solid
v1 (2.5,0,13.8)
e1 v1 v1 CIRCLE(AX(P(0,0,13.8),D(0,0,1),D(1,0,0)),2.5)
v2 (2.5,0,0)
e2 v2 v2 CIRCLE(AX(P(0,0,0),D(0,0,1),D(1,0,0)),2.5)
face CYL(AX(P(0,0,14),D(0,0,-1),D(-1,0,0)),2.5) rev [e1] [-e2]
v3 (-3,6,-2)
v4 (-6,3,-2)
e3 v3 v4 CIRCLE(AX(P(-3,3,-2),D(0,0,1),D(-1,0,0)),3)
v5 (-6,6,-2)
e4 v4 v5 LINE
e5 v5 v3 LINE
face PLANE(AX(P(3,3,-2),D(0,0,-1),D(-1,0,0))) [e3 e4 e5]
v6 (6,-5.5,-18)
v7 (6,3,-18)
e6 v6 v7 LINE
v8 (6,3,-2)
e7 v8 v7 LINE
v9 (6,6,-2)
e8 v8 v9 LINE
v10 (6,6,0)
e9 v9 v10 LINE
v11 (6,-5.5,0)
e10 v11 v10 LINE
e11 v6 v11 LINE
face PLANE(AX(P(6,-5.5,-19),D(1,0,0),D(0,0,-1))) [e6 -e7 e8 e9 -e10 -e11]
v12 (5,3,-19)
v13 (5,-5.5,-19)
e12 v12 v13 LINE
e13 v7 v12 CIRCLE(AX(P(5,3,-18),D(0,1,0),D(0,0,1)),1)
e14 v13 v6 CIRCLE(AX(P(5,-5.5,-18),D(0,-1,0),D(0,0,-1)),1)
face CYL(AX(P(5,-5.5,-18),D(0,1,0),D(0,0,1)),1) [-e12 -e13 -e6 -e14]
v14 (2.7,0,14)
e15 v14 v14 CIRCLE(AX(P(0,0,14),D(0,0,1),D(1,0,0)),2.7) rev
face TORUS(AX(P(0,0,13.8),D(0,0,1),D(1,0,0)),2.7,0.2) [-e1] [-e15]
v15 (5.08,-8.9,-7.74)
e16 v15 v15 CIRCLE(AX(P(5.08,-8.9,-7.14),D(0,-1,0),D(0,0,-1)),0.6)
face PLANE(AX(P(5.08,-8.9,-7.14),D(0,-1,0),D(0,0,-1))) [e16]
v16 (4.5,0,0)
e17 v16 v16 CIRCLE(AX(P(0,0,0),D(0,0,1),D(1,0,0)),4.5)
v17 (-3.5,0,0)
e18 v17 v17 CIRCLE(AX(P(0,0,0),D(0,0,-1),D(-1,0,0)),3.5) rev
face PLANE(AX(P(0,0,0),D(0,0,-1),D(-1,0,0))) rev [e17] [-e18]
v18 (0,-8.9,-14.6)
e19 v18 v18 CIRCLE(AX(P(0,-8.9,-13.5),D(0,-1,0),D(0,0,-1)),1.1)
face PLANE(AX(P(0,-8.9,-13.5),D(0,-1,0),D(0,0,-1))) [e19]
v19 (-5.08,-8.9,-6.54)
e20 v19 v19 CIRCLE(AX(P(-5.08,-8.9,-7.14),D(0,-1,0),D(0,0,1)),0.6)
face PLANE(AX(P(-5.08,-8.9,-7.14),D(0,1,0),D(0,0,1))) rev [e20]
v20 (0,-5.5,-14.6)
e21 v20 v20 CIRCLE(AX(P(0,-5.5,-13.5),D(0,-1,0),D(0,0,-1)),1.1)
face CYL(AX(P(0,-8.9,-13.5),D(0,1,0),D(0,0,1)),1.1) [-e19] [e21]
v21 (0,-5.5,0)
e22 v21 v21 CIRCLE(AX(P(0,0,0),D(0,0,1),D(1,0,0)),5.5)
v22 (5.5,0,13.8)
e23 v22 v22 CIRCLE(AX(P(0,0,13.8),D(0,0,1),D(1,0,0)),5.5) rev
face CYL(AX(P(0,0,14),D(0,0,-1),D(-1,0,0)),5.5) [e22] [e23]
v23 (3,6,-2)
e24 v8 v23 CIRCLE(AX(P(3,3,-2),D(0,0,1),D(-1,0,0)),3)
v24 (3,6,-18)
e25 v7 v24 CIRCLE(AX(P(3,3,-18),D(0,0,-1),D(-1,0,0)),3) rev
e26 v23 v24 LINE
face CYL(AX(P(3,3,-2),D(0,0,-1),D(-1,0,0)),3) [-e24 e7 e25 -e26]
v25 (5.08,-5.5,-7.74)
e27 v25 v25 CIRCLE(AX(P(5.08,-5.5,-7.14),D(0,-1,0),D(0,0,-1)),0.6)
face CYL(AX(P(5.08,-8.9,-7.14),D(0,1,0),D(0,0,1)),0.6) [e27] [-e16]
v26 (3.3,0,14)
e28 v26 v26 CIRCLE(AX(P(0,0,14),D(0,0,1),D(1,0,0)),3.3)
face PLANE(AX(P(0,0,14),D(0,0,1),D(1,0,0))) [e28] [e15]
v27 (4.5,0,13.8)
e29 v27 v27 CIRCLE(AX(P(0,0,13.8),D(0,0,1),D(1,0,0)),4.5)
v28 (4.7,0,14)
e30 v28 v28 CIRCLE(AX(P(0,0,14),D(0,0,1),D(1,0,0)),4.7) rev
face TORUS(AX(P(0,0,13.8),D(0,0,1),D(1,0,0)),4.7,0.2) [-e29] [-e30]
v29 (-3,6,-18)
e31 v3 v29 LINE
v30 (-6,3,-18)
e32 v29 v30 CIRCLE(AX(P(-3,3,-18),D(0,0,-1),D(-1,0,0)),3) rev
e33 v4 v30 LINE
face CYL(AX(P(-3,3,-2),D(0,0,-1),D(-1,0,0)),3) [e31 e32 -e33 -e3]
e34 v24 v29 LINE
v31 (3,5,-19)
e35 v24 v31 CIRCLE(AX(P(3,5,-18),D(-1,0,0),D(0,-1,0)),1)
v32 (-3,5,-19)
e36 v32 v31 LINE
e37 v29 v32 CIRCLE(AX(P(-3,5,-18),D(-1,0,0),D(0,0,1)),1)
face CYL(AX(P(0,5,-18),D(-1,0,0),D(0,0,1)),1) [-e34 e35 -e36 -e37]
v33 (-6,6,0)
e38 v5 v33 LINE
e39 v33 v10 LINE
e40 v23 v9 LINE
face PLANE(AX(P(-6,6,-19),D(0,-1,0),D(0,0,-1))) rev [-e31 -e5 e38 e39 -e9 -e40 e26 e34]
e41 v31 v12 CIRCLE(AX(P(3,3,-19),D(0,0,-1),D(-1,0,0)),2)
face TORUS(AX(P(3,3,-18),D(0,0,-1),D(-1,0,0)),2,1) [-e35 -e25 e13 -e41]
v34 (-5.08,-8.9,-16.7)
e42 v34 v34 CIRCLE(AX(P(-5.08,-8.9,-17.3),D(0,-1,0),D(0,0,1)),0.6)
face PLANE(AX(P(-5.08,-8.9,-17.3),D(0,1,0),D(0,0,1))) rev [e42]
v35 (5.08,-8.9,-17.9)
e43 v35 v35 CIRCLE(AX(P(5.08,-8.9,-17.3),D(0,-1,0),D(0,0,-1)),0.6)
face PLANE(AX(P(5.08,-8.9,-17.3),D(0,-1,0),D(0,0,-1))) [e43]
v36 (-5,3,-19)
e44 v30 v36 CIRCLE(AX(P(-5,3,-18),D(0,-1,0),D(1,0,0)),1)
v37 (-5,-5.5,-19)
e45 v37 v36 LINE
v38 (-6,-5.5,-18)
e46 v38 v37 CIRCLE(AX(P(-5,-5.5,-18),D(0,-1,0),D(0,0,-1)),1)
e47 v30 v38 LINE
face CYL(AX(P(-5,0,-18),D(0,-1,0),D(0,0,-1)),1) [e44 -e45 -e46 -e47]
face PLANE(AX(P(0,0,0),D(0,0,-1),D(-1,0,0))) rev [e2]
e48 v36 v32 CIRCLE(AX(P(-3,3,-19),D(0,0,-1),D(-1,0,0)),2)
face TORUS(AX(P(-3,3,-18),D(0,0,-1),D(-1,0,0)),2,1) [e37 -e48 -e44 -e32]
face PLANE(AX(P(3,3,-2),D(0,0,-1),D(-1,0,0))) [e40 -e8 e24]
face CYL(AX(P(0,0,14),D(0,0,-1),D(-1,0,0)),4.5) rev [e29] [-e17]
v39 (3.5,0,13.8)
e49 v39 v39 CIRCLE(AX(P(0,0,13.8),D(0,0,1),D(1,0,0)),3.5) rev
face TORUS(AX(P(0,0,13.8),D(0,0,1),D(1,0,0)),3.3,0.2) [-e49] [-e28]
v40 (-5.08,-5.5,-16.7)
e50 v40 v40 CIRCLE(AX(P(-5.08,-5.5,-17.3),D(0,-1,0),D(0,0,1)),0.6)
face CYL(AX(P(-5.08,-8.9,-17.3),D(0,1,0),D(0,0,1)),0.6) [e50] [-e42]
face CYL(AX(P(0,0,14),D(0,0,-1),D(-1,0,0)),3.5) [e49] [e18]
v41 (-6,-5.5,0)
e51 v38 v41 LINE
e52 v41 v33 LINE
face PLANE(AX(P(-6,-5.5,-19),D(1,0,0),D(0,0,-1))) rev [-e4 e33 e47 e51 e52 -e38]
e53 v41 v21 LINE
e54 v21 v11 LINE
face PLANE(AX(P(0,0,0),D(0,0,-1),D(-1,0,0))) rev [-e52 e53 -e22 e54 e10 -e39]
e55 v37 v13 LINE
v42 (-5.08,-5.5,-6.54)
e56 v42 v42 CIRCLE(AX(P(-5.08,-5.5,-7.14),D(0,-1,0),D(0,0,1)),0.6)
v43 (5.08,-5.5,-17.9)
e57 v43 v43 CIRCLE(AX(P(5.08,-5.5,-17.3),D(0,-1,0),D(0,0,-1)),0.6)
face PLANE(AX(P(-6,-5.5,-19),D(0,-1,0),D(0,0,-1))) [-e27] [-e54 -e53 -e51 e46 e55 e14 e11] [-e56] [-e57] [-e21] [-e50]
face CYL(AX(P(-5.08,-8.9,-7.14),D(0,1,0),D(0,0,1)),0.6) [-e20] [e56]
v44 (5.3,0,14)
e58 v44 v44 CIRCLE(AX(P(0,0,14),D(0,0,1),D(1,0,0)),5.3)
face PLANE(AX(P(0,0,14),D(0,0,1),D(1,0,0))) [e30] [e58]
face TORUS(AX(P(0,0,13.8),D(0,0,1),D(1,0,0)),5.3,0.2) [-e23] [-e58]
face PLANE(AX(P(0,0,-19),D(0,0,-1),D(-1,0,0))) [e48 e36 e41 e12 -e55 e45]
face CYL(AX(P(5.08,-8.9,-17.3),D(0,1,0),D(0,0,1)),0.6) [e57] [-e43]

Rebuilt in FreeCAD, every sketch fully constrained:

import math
import FreeCAD as App
import Part
import Sketcher
from FreeCAD import Vector
Q = App.Units.Quantity


def edges_at(feature, points):
    """Names of the edges that pass closest to the given points."""
    edges = feature.Shape.Edges
    near = lambda p: min(range(len(edges)), key=lambda i: edges[i].distToShape(Part.Vertex(*p))[0])
    return sorted({f"Edge{near(p) + 1}" for p in points})

doc = App.newDocument("Part")
body = doc.addObject("PartDesign::Body", "Body")

# Sketch on XY plane
sketch1 = doc.addObject("Sketcher::SketchObject", "Sketch")
body.addObject(sketch1)
sketch1.AttachmentSupport = (doc.XY_Plane, [""])
sketch1.MapMode = "FlatFace"
sketch1.addGeometry([
    Part.Circle(Vector(0, 0, 0), Vector(0, 0, 1), 5.5),
    Part.Circle(Vector(0, 0, 0), Vector(0, 0, 1), 4.5),
], False)
sketch1.addConstraint([
    Sketcher.Constraint("Coincident", 0, 3, -1, 1),
    Sketcher.Constraint("Coincident", 1, 3, -1, 1),
    Sketcher.Constraint("Diameter", 0, Q("11 mm")),
    Sketcher.Constraint("Diameter", 1, Q("9 mm")),
])
pad1 = doc.addObject("PartDesign::Pad", "Pad")
body.addObject(pad1)
pad1.Profile = sketch1
pad1.Length = 14
body2 = doc.addObject("PartDesign::Body", "Body001")

# Sketch on XY plane
sketch2 = doc.addObject("Sketcher::SketchObject", "Sketch001")
body2.addObject(sketch2)
sketch2.AttachmentSupport = (doc.getObject("XY_Plane001"), [""])
sketch2.MapMode = "FlatFace"
sketch2.addGeometry([
    Part.Circle(Vector(0, 0, 0), Vector(0, 0, 1), 3.5),
    Part.Circle(Vector(0, 0, 0), Vector(0, 0, 1), 2.5),
], False)
sketch2.addConstraint([
    Sketcher.Constraint("Coincident", 0, 3, -1, 1),
    Sketcher.Constraint("Coincident", 1, 3, -1, 1),
    Sketcher.Constraint("Diameter", 0, Q("7 mm")),
    Sketcher.Constraint("Diameter", 1, Q("5 mm")),
])
pad2 = doc.addObject("PartDesign::Pad", "Pad001")
body2.addObject(pad2)
pad2.Profile = sketch2
pad2.Length = 14
body.AllowCompound = True
doc.recompute()

boolean = doc.addObject("PartDesign::Boolean", "Boolean")
body.addObject(boolean)
boolean.Type = "Fuse"
boolean.addObjects([body2])

# Sketch on XY plane
sketch3 = doc.addObject("Sketcher::SketchObject", "Sketch002")
body.addObject(sketch3)
sketch3.AttachmentSupport = (doc.XY_Plane, [""])
sketch3.MapMode = "FlatFace"
sketch3.addGeometry([
    Part.LineSegment(Vector(-6, 6, 0), Vector(-6, -6, 0)),
    Part.LineSegment(Vector(-6, -6, 0), Vector(6, -6, 0)),
    Part.LineSegment(Vector(6, -6, 0), Vector(6, 6, 0)),
    Part.LineSegment(Vector(6, 6, 0), Vector(-6, 6, 0)),
], False)
sketch3.addConstraint([
    Sketcher.Constraint("Coincident", 0, 2, 1, 1),
    Sketcher.Constraint("Coincident", 1, 2, 2, 1),
    Sketcher.Constraint("Coincident", 2, 2, 3, 1),
    Sketcher.Constraint("Coincident", 3, 2, 0, 1),
    Sketcher.Constraint("Vertical", 0),
    Sketcher.Constraint("Horizontal", 1),
    Sketcher.Constraint("Vertical", 2),
    Sketcher.Constraint("Horizontal", 3),
    Sketcher.Constraint("DistanceX", 1, 1, 1, 2, Q("12 mm")),
    Sketcher.Constraint("DistanceY", 0, 2, 0, 1, Q("11.5 mm")),
    Sketcher.Constraint("DistanceX", 0, 2, -1, 1, Q("6 mm")),
    Sketcher.Constraint("DistanceY", -1, 1, 2, 2, Q("6 mm")),
])
pad3 = doc.addObject("PartDesign::Pad", "Pad002")
body.addObject(pad3)
pad3.Profile = sketch3
pad3.Length = 19
pad3.Reversed = True
doc.recompute()

fillet = doc.addObject("PartDesign::Fillet", "Fillet")
body.addObject(fillet)
fillet.Base = (pad3, edges_at(pad3, [
    (-2.5, 0, 14),
    (-3.5, 0, 14),
    (-4.5, 0, 14),
    (-5.5, 0, 14),
]))
fillet.Radius = 0.2

# Sketch on XY plane
sketch4 = doc.addObject("Sketcher::SketchObject", "Sketch003")
body.addObject(sketch4)
sketch4.AttachmentSupport = (doc.XY_Plane, [""])
sketch4.MapMode = "FlatFace"
sketch4.AttachmentOffset = App.Placement(Vector(0, 0, -19), App.Rotation())
sketch4.addGeometry([
    Part.LineSegment(Vector(8.7, 11, 0), Vector(8.7, 1, 0)),  # 0
    Part.LineSegment(Vector(8.7, 1, 0), Vector(6, 1, 0)),  # 1
    Part.LineSegment(Vector(6, 1, 0), Vector(6, 3, 0)),  # 2
    Part.ArcOfCircle(Part.Circle(Vector(3, 3, 0), Vector(0, 0, 1), 3), math.radians(0), math.radians(90)),  # 3
    Part.LineSegment(Vector(3, 6, 0), Vector(-3, 6, 0)),  # 4
    Part.ArcOfCircle(Part.Circle(Vector(-3, 3, 0), Vector(0, 0, 1), 3), math.radians(90), math.radians(180)),  # 5
    Part.LineSegment(Vector(-6, 3, 0), Vector(-6, 1, 0)),  # 6
    Part.LineSegment(Vector(-6, 1, 0), Vector(-8, 1, 0)),  # 7
    Part.LineSegment(Vector(-8, 1, 0), Vector(-8, 11, 0)),  # 8
    Part.LineSegment(Vector(-8, 11, 0), Vector(8.7, 11, 0)),  # 9
], False)
sketch4.addConstraint([
    Sketcher.Constraint("Coincident", 0, 2, 1, 1),
    Sketcher.Constraint("Coincident", 1, 2, 2, 1),
    Sketcher.Constraint("Tangent", 2, 2, 3, 1),
    Sketcher.Constraint("Tangent", 3, 2, 4, 1),
    Sketcher.Constraint("Tangent", 4, 2, 5, 1),
    Sketcher.Constraint("Tangent", 5, 2, 6, 1),
    Sketcher.Constraint("Coincident", 6, 2, 7, 1),
    Sketcher.Constraint("Coincident", 7, 2, 8, 1),
    Sketcher.Constraint("Coincident", 8, 2, 9, 1),
    Sketcher.Constraint("Coincident", 9, 2, 0, 1),
    Sketcher.Constraint("Vertical", 0),
    Sketcher.Constraint("Horizontal", 1),
    Sketcher.Constraint("Vertical", 2),
    Sketcher.Constraint("Horizontal", 4),
    Sketcher.Constraint("Vertical", 6),
    Sketcher.Constraint("Horizontal", 7),
    Sketcher.Constraint("Vertical", 8),
    Sketcher.Constraint("Horizontal", 9),
    Sketcher.Constraint("Equal", 3, 5),
    Sketcher.Constraint("Symmetric", 1, 2, 6, 2, -2),
    Sketcher.Constraint("Radius", 3, Q("3 mm")),
    Sketcher.Constraint("DistanceX", 4, 2, 4, 1, Q("6 mm")),
    Sketcher.Constraint("DistanceY", 0, 2, 0, 1, Q("10 mm")),
    Sketcher.Constraint("DistanceY", 2, 1, 2, 2, Q("2 mm")),
    Sketcher.Constraint("DistanceY", -1, 1, 3, 3, Q("3 mm")),
    Sketcher.Constraint("DistanceX", 7, 2, 7, 1, Q("1.98389 mm")),
    Sketcher.Constraint("DistanceX", 1, 2, 1, 1, Q("2.747423 mm")),
])
pocket1 = doc.addObject("PartDesign::Pocket", "Pocket")
body.addObject(pocket1)
pocket1.Profile = sketch4
pocket1.Length = 17
pocket1.Reversed = True
doc.recompute()

fillet2 = doc.addObject("PartDesign::Fillet", "Fillet001")
body.addObject(fillet2)
fillet2.Base = (pocket1, edges_at(pocket1, [
    (-6, -1.25, -19),
    (0, 6, -19),
    (-5.121, 5.121, -19),
    (5.121, 5.121, -19),
    (6, -1.25, -19),
]))
fillet2.Radius = 1

# Sketch on XZ plane
sketch5 = doc.addObject("Sketcher::SketchObject", "Sketch004")
body.addObject(sketch5)
sketch5.AttachmentSupport = (doc.XZ_Plane, [""])
sketch5.MapMode = "FlatFace"
sketch5.AttachmentOffset = App.Placement(Vector(0, 0, 5.5), App.Rotation())
sketch5.addGeometry([
    Part.Circle(Vector(0, -13.5, 0), Vector(0, 0, 1), 1.1),  # 0
    Part.Circle(Vector(5.1, -17.3, 0), Vector(0, 0, 1), 0.6),  # 1
    Part.Circle(Vector(-5.1, -7.1, 0), Vector(0, 0, 1), 0.6),  # 2
    Part.Circle(Vector(-5.1, -17.3, 0), Vector(0, 0, 1), 0.6),  # 3
    Part.Circle(Vector(5.1, -7.1, 0), Vector(0, 0, 1), 0.6),  # 4
], False)
sketch5.addConstraint([
    Sketcher.Constraint("Equal", 1, 2),
    Sketcher.Constraint("Equal", 2, 3),
    Sketcher.Constraint("Equal", 3, 4),
    Sketcher.Constraint("Symmetric", 1, 3, 3, 3, -2),
    Sketcher.Constraint("Symmetric", 2, 3, 4, 3, -2),
    Sketcher.Constraint("PointOnObject", 0, 3, -2),
    Sketcher.Constraint("Vertical", 2, 3, 3, 3),
    Sketcher.Constraint("Diameter", 0, Q("2.2 mm")),
    Sketcher.Constraint("Diameter", 1, Q("1.2 mm")),
    Sketcher.Constraint("DistanceY", 0, 3, -1, 1, Q("13.5 mm")),
    Sketcher.Constraint("DistanceY", 1, 3, -1, 1, Q("17.3 mm")),
    Sketcher.Constraint("DistanceX", -1, 1, 1, 3, Q("5.08 mm")),
    Sketcher.Constraint("DistanceY", 2, 3, -1, 1, Q("7.14 mm")),
])
pad4 = doc.addObject("PartDesign::Pad", "Pad003")
body.addObject(pad4)
pad4.Profile = sketch5
pad4.Length = 3.4

doc.recompute()
